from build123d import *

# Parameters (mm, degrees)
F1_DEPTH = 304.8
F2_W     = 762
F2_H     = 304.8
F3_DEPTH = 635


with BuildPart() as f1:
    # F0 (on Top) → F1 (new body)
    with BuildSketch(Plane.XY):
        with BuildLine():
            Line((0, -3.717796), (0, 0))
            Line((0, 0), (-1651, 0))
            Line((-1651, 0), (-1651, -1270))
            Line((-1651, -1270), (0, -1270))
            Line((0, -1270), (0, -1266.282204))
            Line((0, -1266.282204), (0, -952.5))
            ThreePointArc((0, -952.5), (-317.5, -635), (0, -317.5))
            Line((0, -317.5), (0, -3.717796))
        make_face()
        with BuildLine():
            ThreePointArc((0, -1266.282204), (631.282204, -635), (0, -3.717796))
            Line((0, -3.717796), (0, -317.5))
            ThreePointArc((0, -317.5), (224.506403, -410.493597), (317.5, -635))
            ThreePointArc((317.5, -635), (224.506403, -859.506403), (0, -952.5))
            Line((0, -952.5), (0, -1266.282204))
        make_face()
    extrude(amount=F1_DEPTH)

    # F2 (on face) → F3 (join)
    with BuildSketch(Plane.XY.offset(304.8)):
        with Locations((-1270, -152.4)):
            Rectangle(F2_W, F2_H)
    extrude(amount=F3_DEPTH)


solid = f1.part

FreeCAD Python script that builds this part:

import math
import FreeCAD as App
import Part
import Sketcher

V = App.Vector
Q = App.Units.Quantity


def add_polygon(sketch, points):
    """Adds a closed chain of lines whose ends are joined by coincident constraints."""
    first, n = sketch.GeometryCount, len(points)
    for a, b in zip(points, points[1:] + points[:1]):
        sketch.addGeometry(Part.LineSegment(App.Vector(*a, 0), App.Vector(*b, 0)), False)
    for i in range(n):
        sketch.addConstraint(Sketcher.Constraint("Coincident", first + i, 2, first + (i + 1) % n, 1))

doc = App.newDocument("Part")
body = doc.addObject("PartDesign::Body", "Body")

sketch1 = body.newObject("Sketcher::SketchObject", "Sketch")
sketch1.AttachmentSupport = (doc.getObject("XY_Plane"), [""])
sketch1.MapMode = "FlatFace"
sketch1.addGeometry(Part.LineSegment(V(0, 0, 0), V(-1651, 0, 0)), False)
sketch1.addGeometry(Part.LineSegment(V(-1651, 0, 0), V(-1651, -1270, 0)), False)
sketch1.addGeometry(Part.LineSegment(V(-1651, -1270, 0), V(0, -1270, 0)), False)
sketch1.addGeometry(Part.LineSegment(V(0, -1270, 0), V(0, -1266.3, 0)), False)
sketch1.addGeometry(Part.ArcOfCircle(Part.Circle(V(0, -635, 0), V(0, 0, 1), 631.3), math.radians(-90), math.radians(90)), False)
sketch1.addGeometry(Part.LineSegment(V(0, -3.7, 0), V(0, 0, 0)), False)
sketch1.addGeometry(Part.ArcOfCircle(Part.Circle(V(0, -635, 0), V(0, 0, 1), 317.5), math.radians(90), math.radians(270)), False)
sketch1.addGeometry(Part.ArcOfCircle(Part.Circle(V(0, -635, 0), V(0, 0, 1), 317.5), math.radians(0), math.radians(90)), False)
sketch1.addGeometry(Part.ArcOfCircle(Part.Circle(V(0, -635, 0), V(0, 0, 1), 317.5), math.radians(-90), math.radians(0)), False)
sketch1.addConstraint(Sketcher.Constraint("Coincident", 0, 2, 1, 1))
sketch1.addConstraint(Sketcher.Constraint("Coincident", 1, 2, 2, 1))
sketch1.addConstraint(Sketcher.Constraint("Coincident", 2, 2, 3, 1))
sketch1.addConstraint(Sketcher.Constraint("Coincident", 3, 2, 4, 1))
sketch1.addConstraint(Sketcher.Constraint("Coincident", 4, 2, 5, 1))
sketch1.addConstraint(Sketcher.Constraint("Coincident", 5, 2, 0, 1))
sketch1.addConstraint(Sketcher.Constraint("Tangent", 6, 1, 7, 2))
sketch1.addConstraint(Sketcher.Constraint("Tangent", 7, 1, 8, 2))
sketch1.addConstraint(Sketcher.Constraint("Coincident", 8, 1, 6, 2))
sketch1.addConstraint(Sketcher.Constraint("Horizontal", 0))
sketch1.addConstraint(Sketcher.Constraint("Vertical", 1))
sketch1.addConstraint(Sketcher.Constraint("Horizontal", 2))
sketch1.addConstraint(Sketcher.Constraint("Vertical", 3))
sketch1.addConstraint(Sketcher.Constraint("Vertical", 5))
sketch1.addConstraint(Sketcher.Constraint("Coincident", 5, 2, -1, 1))
sketch1.addConstraint(Sketcher.Constraint("Coincident", 6, 3, 4, 3))
sketch1.addConstraint(Sketcher.Constraint("Equal", 6, 7))
sketch1.addConstraint(Sketcher.Constraint("PointOnObject", 4, 3, -2))
sketch1.addConstraint(Sketcher.Constraint("PointOnObject", 2, 2, -2))
sketch1.addConstraint(Sketcher.Constraint("PointOnObject", 6, 1, -2))
sketch1.addConstraint(Sketcher.Constraint("PointOnObject", 8, 1, -2))
sketch1.addConstraint(Sketcher.Constraint("Horizontal", 8, 3, 7, 1))
sketch1.addConstraint(Sketcher.Constraint("Equal", 3, 5))
sketch1.addConstraint(Sketcher.Constraint("Radius", 6, Q("12.5 in")))
sketch1.addConstraint(Sketcher.Constraint("DistanceX", 0, 2, 0, 1, Q("65 in")))
sketch1.addConstraint(Sketcher.Constraint("DistanceY", 1, 2, 1, 1, Q("50 in")))
sketch1.addConstraint(Sketcher.Constraint("Radius", 4, 631.282204))
pad1 = body.newObject("PartDesign::Pad", "Pad")
pad1.Profile = sketch1
pad1.Length = Q("12 in")

sketch2 = body.newObject("Sketcher::SketchObject", "Sketch001")
sketch2.AttachmentSupport = (doc.getObject("XY_Plane"), [""])
sketch2.MapMode = "FlatFace"
sketch2.AttachmentOffset = App.Placement(V(0, 0, 12 * 25.4), App.Rotation())
add_polygon(sketch2, [(-1651, 0), (-1651, -305), (-889, -305), (-889, 0)])
sketch2.addConstraint(Sketcher.Constraint("Vertical", 0))
sketch2.addConstraint(Sketcher.Constraint("Horizontal", 1))
sketch2.addConstraint(Sketcher.Constraint("Vertical", 2))
sketch2.addConstraint(Sketcher.Constraint("Horizontal", 3))
sketch2.addConstraint(Sketcher.Constraint("PointOnObject", 2, 2, -1))
sketch2.addConstraint(Sketcher.Constraint("DistanceX", 1, 1, 1, 2, Q("30 in")))
sketch2.addConstraint(Sketcher.Constraint("DistanceY", 0, 2, 0, 1, Q("12 in")))
sketch2.addConstraint(Sketcher.Constraint("DistanceX", 0, 2, -1, 1, Q("65 in")))
pad2 = body.newObject("PartDesign::Pad", "Pad001")
pad2.Profile = sketch2
pad2.Length = Q("25 in")

doc.recompute()
